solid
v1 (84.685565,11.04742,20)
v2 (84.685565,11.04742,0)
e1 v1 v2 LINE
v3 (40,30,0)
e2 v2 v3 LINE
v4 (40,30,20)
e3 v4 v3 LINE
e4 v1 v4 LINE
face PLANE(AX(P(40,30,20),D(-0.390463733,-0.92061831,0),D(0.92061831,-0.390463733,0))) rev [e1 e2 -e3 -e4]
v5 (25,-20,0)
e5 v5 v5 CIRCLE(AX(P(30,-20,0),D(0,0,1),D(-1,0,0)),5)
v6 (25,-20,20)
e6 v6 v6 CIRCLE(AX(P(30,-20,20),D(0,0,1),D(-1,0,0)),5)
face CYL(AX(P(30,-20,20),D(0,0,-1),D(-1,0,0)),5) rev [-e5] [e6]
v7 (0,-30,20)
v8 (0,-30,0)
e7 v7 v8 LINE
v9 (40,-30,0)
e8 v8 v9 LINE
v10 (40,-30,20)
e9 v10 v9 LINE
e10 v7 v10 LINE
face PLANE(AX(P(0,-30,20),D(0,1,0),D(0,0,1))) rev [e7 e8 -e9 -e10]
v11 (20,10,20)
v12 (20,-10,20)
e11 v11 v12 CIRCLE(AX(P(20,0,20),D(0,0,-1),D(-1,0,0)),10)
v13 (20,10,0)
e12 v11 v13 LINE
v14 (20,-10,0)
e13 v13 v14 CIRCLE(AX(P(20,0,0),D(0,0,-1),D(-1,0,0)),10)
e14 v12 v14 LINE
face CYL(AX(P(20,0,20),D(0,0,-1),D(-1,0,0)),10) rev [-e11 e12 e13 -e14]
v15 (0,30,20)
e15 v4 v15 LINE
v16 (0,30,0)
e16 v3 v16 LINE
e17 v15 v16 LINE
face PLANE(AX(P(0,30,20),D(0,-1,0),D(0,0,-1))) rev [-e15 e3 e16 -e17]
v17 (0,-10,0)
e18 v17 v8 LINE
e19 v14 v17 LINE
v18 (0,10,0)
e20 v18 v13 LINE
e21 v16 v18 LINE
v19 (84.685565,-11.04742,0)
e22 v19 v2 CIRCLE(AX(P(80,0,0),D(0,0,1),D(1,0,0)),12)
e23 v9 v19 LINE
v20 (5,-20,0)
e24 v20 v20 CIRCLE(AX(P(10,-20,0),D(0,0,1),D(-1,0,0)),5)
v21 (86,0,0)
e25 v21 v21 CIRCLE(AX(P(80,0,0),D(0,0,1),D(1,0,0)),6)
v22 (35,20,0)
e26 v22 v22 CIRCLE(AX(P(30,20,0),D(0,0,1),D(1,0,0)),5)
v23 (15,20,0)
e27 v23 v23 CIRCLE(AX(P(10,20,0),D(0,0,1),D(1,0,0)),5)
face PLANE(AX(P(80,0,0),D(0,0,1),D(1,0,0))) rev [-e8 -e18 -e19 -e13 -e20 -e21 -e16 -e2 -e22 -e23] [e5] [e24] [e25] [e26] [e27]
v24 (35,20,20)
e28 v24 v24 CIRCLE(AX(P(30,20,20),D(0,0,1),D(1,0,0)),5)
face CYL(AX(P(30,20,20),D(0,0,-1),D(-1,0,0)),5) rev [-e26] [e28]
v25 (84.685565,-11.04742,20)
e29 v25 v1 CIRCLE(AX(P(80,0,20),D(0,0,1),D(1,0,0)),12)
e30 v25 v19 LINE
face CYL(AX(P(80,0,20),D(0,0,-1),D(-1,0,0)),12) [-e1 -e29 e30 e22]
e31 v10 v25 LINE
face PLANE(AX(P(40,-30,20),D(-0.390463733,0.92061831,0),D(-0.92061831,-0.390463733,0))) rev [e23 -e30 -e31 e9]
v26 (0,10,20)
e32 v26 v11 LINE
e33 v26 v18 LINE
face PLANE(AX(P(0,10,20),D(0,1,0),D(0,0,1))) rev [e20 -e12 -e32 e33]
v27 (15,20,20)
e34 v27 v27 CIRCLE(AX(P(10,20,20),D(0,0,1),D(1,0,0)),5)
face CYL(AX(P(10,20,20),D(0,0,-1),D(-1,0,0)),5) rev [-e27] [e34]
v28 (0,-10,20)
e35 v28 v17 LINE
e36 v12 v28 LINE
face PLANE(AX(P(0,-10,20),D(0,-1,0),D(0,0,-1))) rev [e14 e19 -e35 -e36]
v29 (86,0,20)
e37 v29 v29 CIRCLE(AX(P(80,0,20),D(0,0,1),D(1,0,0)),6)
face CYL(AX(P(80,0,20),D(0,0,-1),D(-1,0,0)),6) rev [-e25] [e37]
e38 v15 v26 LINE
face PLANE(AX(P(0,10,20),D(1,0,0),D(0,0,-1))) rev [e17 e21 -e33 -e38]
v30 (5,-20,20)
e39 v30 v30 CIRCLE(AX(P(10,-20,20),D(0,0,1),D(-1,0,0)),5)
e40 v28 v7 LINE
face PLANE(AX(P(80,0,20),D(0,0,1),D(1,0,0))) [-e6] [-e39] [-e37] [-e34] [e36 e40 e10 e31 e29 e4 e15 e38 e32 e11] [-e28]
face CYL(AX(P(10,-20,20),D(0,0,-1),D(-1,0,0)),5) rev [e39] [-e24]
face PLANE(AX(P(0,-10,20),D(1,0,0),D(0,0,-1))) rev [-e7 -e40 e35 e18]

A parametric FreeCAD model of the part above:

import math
import FreeCAD as App
import Part
import Sketcher
from FreeCAD import Vector
Q = App.Units.Quantity

doc = App.newDocument("Part")
body = doc.addObject("PartDesign::Body", "Body")

sketch1 = doc.addObject("Sketcher::SketchObject", "Sketch")
body.addObject(sketch1)
sketch1.AttachmentSupport = (doc.XY_Plane, [""])
sketch1.MapMode = "FlatFace"
sketch1.addGeometry([
    Part.LineSegment(Vector(0, 10, 0), Vector(20, 10, 0)),
    Part.ArcOfCircle(Part.Circle(Vector(20, 0, 0), Vector(0, 0, 1), 10), math.radians(-90), math.radians(90)),
    Part.LineSegment(Vector(20, -10, 0), Vector(0, -10, 0)),
    Part.LineSegment(Vector(0, -10, 0), Vector(0, -30, 0)),
    Part.LineSegment(Vector(0, -30, 0), Vector(40, -30, 0)),
    Part.LineSegment(Vector(40, -30, 0), Vector(84.685565, -11.04742, 0)),
    Part.ArcOfCircle(Part.Circle(Vector(80, 0, 0), Vector(0, 0, 1), 12), math.radians(-67.016643), math.radians(67.016643)),
    Part.LineSegment(Vector(84.685565, 11.04742, 0), Vector(40, 30, 0)),
    Part.LineSegment(Vector(40, 30, 0), Vector(0, 30, 0)),
    Part.LineSegment(Vector(0, 30, 0), Vector(0, 10, 0)),
    Part.Circle(Vector(10, -20, 0), Vector(0, 0, 1), 5),
    Part.Circle(Vector(30, -20, 0), Vector(0, 0, 1), 5),
    Part.Circle(Vector(10, 20, 0), Vector(0, 0, 1), 5),
    Part.Circle(Vector(30, 20, 0), Vector(0, 0, 1), 5),
    Part.Circle(Vector(80, 0, 0), Vector(0, 0, 1), 6),
], False)
sketch1.addConstraint([
    Sketcher.Constraint("Tangent", 0, 2, 1, 2),
    Sketcher.Constraint("Tangent", 1, 1, 2, 1),
    Sketcher.Constraint("Coincident", 2, 2, 3, 1),
    Sketcher.Constraint("Coincident", 3, 2, 4, 1),
    Sketcher.Constraint("Coincident", 4, 2, 5, 1),
    Sketcher.Constraint("Tangent", 5, 2, 6, 1),
    Sketcher.Constraint("Tangent", 6, 2, 7, 1),
    Sketcher.Constraint("Coincident", 7, 2, 8, 1),
    Sketcher.Constraint("Coincident", 8, 2, 9, 1),
    Sketcher.Constraint("Coincident", 9, 2, 0, 1),
    Sketcher.Constraint("Horizontal", 0),
    Sketcher.Constraint("Horizontal", 2),
    Sketcher.Constraint("Vertical", 3),
    Sketcher.Constraint("Horizontal", 4),
    Sketcher.Constraint("Horizontal", 8),
    Sketcher.Constraint("Vertical", 9),
    Sketcher.Constraint("Coincident", 14, 3, 6, 3),
    Sketcher.Constraint("Equal", 10, 11),
    Sketcher.Constraint("Equal", 11, 12),
    Sketcher.Constraint("Equal", 12, 13),
    Sketcher.Constraint("Symmetric", 3, 2, 8, 2, -1, 1),
    Sketcher.Constraint("Symmetric", 10, 3, 12, 3, -1),
    Sketcher.Constraint("Symmetric", 11, 3, 13, 3, -1),
    Sketcher.Constraint("Symmetric", 5, 2, 6, 2, -1),
    Sketcher.Constraint("Symmetric", 2, 2, 9, 2, -1),
    Sketcher.Constraint("Horizontal", 10, 3, 11, 3),
    Sketcher.Constraint("Equal", 2, 3),
    Sketcher.Constraint("Diameter", 10, Q("10 mm")),
    Sketcher.Constraint("Diameter", 14, Q("12 mm")),
    Sketcher.Constraint("Radius", 1, Q("10 mm")),
    Sketcher.Constraint("Radius", 6, Q("12 mm")),
    Sketcher.Constraint("DistanceX", 0, 1, 0, 2, Q("20 mm")),
    Sketcher.Constraint("DistanceX", 4, 1, 4, 2, Q("40 mm")),
    Sketcher.Constraint("DistanceX", -1, 1, 6, 3, Q("80 mm")),
    Sketcher.Constraint("DistanceX", -1, 1, 10, 3, Q("10 mm")),
    Sketcher.Constraint("DistanceY", 10, 3, -1, 1, Q("20 mm")),
    Sketcher.Constraint("DistanceX", -1, 1, 11, 3, Q("30 mm")),
])
pad1 = doc.addObject("PartDesign::Pad", "Pad")
body.addObject(pad1)
pad1.Profile = sketch1
pad1.Length = 20

doc.recompute()
